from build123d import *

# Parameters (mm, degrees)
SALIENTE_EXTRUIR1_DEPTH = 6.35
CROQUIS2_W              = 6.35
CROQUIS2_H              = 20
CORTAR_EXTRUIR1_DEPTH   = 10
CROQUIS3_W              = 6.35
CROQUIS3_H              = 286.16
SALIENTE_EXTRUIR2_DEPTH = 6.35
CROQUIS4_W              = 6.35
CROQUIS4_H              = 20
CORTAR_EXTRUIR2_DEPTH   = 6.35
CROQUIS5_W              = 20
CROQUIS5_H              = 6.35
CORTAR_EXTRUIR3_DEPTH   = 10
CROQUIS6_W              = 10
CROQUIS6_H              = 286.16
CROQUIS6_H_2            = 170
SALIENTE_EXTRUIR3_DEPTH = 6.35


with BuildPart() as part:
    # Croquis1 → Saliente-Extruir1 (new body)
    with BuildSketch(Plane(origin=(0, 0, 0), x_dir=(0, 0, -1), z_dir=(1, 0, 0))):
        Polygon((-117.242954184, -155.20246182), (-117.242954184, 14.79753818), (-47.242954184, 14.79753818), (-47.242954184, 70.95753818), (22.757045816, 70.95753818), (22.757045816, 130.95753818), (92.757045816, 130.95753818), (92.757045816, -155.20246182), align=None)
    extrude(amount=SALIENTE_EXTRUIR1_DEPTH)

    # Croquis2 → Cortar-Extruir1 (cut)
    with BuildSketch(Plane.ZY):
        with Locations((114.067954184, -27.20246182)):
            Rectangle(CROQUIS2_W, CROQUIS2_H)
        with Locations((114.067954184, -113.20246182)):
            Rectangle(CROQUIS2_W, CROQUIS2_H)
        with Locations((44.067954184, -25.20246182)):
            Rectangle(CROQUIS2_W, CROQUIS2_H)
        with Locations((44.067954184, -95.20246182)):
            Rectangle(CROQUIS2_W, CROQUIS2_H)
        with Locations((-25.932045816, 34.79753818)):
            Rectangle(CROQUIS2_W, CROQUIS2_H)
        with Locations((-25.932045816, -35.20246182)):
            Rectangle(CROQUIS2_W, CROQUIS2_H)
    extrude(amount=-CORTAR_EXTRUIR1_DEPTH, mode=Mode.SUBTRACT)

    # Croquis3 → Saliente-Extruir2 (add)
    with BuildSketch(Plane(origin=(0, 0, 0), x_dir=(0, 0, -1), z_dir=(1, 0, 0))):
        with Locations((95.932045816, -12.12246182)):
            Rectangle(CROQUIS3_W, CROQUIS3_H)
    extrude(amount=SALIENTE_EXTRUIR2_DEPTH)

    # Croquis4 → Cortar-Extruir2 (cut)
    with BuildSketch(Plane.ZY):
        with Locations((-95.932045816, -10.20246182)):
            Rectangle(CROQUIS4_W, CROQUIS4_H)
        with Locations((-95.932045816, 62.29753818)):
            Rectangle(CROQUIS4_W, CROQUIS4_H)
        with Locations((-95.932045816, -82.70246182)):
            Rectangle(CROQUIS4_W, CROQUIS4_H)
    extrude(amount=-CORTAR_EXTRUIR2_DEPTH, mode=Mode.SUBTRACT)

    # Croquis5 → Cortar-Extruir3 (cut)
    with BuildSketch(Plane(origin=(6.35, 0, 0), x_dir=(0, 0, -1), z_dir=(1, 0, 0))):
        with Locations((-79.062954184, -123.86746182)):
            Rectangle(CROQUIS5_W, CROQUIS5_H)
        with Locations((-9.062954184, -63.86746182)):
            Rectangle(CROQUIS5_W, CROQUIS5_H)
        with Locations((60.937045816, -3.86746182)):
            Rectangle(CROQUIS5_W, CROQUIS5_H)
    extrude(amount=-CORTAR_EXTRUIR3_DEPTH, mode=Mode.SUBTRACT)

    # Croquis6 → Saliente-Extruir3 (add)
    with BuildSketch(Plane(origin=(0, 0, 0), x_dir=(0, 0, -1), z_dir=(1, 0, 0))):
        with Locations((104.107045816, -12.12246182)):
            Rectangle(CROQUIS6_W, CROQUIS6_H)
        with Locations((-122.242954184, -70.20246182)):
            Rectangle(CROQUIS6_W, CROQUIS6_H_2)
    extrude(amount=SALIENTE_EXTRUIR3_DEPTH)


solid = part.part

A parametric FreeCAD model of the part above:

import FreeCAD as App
import Part
import Sketcher
from FreeCAD import Vector
Q = App.Units.Quantity


def add_polygon(sketch, points):
    """Adds a closed chain of lines whose ends are joined by coincident constraints."""
    first, n = sketch.GeometryCount, len(points)
    for a, b in zip(points, points[1:] + points[:1]):
        sketch.addGeometry(Part.LineSegment(App.Vector(*a, 0), App.Vector(*b, 0)), False)
    for i in range(n):
        sketch.addConstraint(Sketcher.Constraint("Coincident", first + i, 2, first + (i + 1) % n, 1))

doc = App.newDocument("Part")
body = doc.addObject("PartDesign::Body", "Body")

# Sketch on YZ plane
sketch1 = doc.addObject("Sketcher::SketchObject", "Sketch")
body.addObject(sketch1)
sketch1.AttachmentSupport = (doc.YZ_Plane, [""])
sketch1.MapMode = "FlatFace"
add_polygon(sketch1, [(15, 117), (-155, 117), (-155, -93), (131, -93), (131, -23), (71, -23), (71, 47), (15, 47)])  # lines 0-7
sketch1.addConstraint([
    Sketcher.Constraint("Horizontal", 0),
    Sketcher.Constraint("Vertical", 1),
    Sketcher.Constraint("Horizontal", 2),
    Sketcher.Constraint("Vertical", 3),
    Sketcher.Constraint("Horizontal", 4),
    Sketcher.Constraint("Vertical", 5),
    Sketcher.Constraint("Horizontal", 6),
    Sketcher.Constraint("Vertical", 7),
    Sketcher.Constraint("Equal", 3, 5),
    Sketcher.Constraint("Equal", 5, 7),
    Sketcher.Constraint("DistanceX", 0, 2, 0, 1, Q("170 mm")),
    Sketcher.Constraint("DistanceX", 4, 2, 4, 1, Q("60 mm")),
    Sketcher.Constraint("DistanceY", 1, 2, 1, 1, Q("210 mm")),
    Sketcher.Constraint("DistanceX", 2, 1, 2, 2, Q("286.16 mm")),
    Sketcher.Constraint("DistanceX", 0, 2, -1, 1, Q("155.202462 mm")),
    Sketcher.Constraint("DistanceY", -1, 1, 0, 2, Q("117.242954 mm")),
])
pad1 = doc.addObject("PartDesign::Pad", "Pad")
body.addObject(pad1)
pad1.Profile = sketch1
pad1.Length = 6.35

# Sketch on YZ plane
sketch2 = doc.addObject("Sketcher::SketchObject", "Sketch001")
body.addObject(sketch2)
sketch2.AttachmentSupport = (doc.YZ_Plane, [""])
sketch2.MapMode = "FlatFace"
add_polygon(sketch2, [(-17, 111), (-37, 111), (-37, 117), (-17, 117)])  # lines 0-3
add_polygon(sketch2, [(-103, 111), (-123, 111), (-123, 117), (-103, 117)])  # lines 4-7
add_polygon(sketch2, [(-15, 41), (-35, 41), (-35, 47), (-15, 47)])  # lines 8-11
add_polygon(sketch2, [(-85, 41), (-105, 41), (-105, 47), (-85, 47)])  # lines 12-15
add_polygon(sketch2, [(45, -29), (25, -29), (25, -23), (45, -23)])  # lines 16-19
add_polygon(sketch2, [(-25, -29), (-45, -29), (-45, -23), (-25, -23)])  # lines 20-23
sketch2.addConstraint([
    Sketcher.Constraint("Horizontal", 0),
    Sketcher.Constraint("Vertical", 1),
    Sketcher.Constraint("Horizontal", 2),
    Sketcher.Constraint("Vertical", 3),
    Sketcher.Constraint("Horizontal", 4),
    Sketcher.Constraint("Vertical", 5),
    Sketcher.Constraint("Horizontal", 6),
    Sketcher.Constraint("Vertical", 7),
    Sketcher.Constraint("Horizontal", 8),
    Sketcher.Constraint("Vertical", 9),
    Sketcher.Constraint("Horizontal", 10),
    Sketcher.Constraint("Vertical", 11),
    Sketcher.Constraint("Horizontal", 12),
    Sketcher.Constraint("Vertical", 13),
    Sketcher.Constraint("Horizontal", 14),
    Sketcher.Constraint("Vertical", 15),
    Sketcher.Constraint("Horizontal", 16),
    Sketcher.Constraint("Vertical", 17),
    Sketcher.Constraint("Horizontal", 18),
    Sketcher.Constraint("Vertical", 19),
    Sketcher.Constraint("Horizontal", 20),
    Sketcher.Constraint("Vertical", 21),
    Sketcher.Constraint("Horizontal", 22),
    Sketcher.Constraint("Vertical", 23),
    Sketcher.Constraint("Horizontal", 3, 2, 4, 2),
    Sketcher.Constraint("Horizontal", 2, 2, 5, 2),
    Sketcher.Constraint("Horizontal", 11, 2, 12, 2),
    Sketcher.Constraint("Horizontal", 10, 2, 13, 2),
    Sketcher.Constraint("Horizontal", 19, 2, 20, 2),
    Sketcher.Constraint("Horizontal", 18, 2, 21, 2),
    Sketcher.Constraint("Equal", 2, 4),
    Sketcher.Constraint("Equal", 6, 8),
    Sketcher.Constraint("Equal", 10, 12),
    Sketcher.Constraint("Equal", 14, 16),
    Sketcher.Constraint("Equal", 18, 20),
    Sketcher.Constraint("Equal", 7, 9),
    Sketcher.Constraint("Equal", 15, 17),
    Sketcher.Constraint("DistanceX", 0, 2, 0, 1, Q("20 mm")),
    Sketcher.Constraint("DistanceX", 4, 2, 0, 2, Q("86 mm")),
    Sketcher.Constraint("DistanceX", 0, 2, 8, 2, Q("2 mm")),
    Sketcher.Constraint("DistanceY", 8, 2, 0, 2, Q("70 mm")),
    Sketcher.Constraint("DistanceX", 12, 2, 8, 2, Q("70 mm")),
    Sketcher.Constraint("DistanceX", 11, 2, 16, 2, Q("40 mm")),
    Sketcher.Constraint("DistanceY", 16, 2, 11, 2, Q("70 mm")),
    Sketcher.Constraint("DistanceX", 20, 2, 16, 2, Q("70 mm")),
    Sketcher.Constraint("DistanceY", 1, 1, 1, 2, Q("6.35 mm")),
    Sketcher.Constraint("DistanceX", 0, 2, -1, 1, Q("37.202462 mm")),
    Sketcher.Constraint("DistanceY", -1, 1, 0, 2, Q("110.892954 mm")),
])
pocket1 = doc.addObject("PartDesign::Pocket", "Pocket")
body.addObject(pocket1)
pocket1.Profile = sketch2
pocket1.Length = 10
pocket1.Reversed = True

# Sketch on YZ plane
sketch3 = doc.addObject("Sketcher::SketchObject", "Sketch002")
body.addObject(sketch3)
sketch3.AttachmentSupport = (doc.YZ_Plane, [""])
sketch3.MapMode = "FlatFace"
add_polygon(sketch3, [(131, -93), (-155, -93), (-155, -99), (131, -99)])  # lines 0-3
sketch3.addConstraint([
    Sketcher.Constraint("Horizontal", 0),
    Sketcher.Constraint("Vertical", 1),
    Sketcher.Constraint("Horizontal", 2),
    Sketcher.Constraint("Vertical", 3),
    Sketcher.Constraint("DistanceX", 0, 2, 0, 1, Q("286.16 mm")),
    Sketcher.Constraint("DistanceY", 1, 2, 1, 1, Q("6.35 mm")),
    Sketcher.Constraint("DistanceX", 0, 2, -1, 1, Q("155.202462 mm")),
    Sketcher.Constraint("DistanceY", 0, 2, -1, 1, Q("92.757046 mm")),
])
pad2 = doc.addObject("PartDesign::Pad", "Pad001")
body.addObject(pad2)
pad2.Profile = sketch3
pad2.Length = 6.35

# Sketch on YZ plane
sketch4 = doc.addObject("Sketcher::SketchObject", "Sketch003")
body.addObject(sketch4)
sketch4.AttachmentSupport = (doc.YZ_Plane, [""])
sketch4.MapMode = "FlatFace"
add_polygon(sketch4, [(0, -99), (-20, -99), (-20, -93), (0, -93)])  # lines 0-3
add_polygon(sketch4, [(72, -99), (52, -99), (52, -93), (72, -93)])  # lines 4-7
add_polygon(sketch4, [(-73, -99), (-93, -99), (-93, -93), (-73, -93)])  # lines 8-11
sketch4.addConstraint([
    Sketcher.Constraint("Horizontal", 0),
    Sketcher.Constraint("Vertical", 1),
    Sketcher.Constraint("Horizontal", 2),
    Sketcher.Constraint("Vertical", 3),
    Sketcher.Constraint("Horizontal", 4),
    Sketcher.Constraint("Vertical", 5),
    Sketcher.Constraint("Horizontal", 6),
    Sketcher.Constraint("Vertical", 7),
    Sketcher.Constraint("Horizontal", 8),
    Sketcher.Constraint("Vertical", 9),
    Sketcher.Constraint("Horizontal", 10),
    Sketcher.Constraint("Vertical", 11),
    Sketcher.Constraint("Horizontal", 3, 2, 4, 2),
    Sketcher.Constraint("Horizontal", 2, 2, 5, 2),
    Sketcher.Constraint("Horizontal", 7, 2, 8, 2),
    Sketcher.Constraint("Horizontal", 6, 2, 9, 2),
    Sketcher.Constraint("Equal", 2, 4),
    Sketcher.Constraint("Equal", 6, 8),
    Sketcher.Constraint("DistanceX", 0, 2, 0, 1, Q("20 mm")),
    Sketcher.Constraint("DistanceX", 8, 2, 4, 2, Q("145 mm")),
    Sketcher.Constraint("DistanceY", 1, 1, 1, 2, Q("6.35 mm")),
    Sketcher.Constraint("DistanceX", 3, 2, 4, 2, Q("52.5 mm")),
    Sketcher.Constraint("DistanceX", 0, 2, -1, 1, Q("20.202462 mm")),
    Sketcher.Constraint("DistanceY", 0, 2, -1, 1, Q("99.107046 mm")),
])
pocket2 = doc.addObject("PartDesign::Pocket", "Pocket001")
body.addObject(pocket2)
pocket2.Profile = sketch4
pocket2.Length = 6.35
pocket2.Reversed = True

# Sketch on YZ plane
sketch5 = doc.addObject("Sketcher::SketchObject", "Sketch004")
body.addObject(sketch5)
sketch5.AttachmentSupport = (doc.YZ_Plane, [""])
sketch5.MapMode = "FlatFace"
sketch5.AttachmentOffset = App.Placement(Vector(0, 0, 6.35), App.Rotation())
add_polygon(sketch5, [(-121, 89), (-127, 89), (-127, 69), (-121, 69)])  # lines 0-3
add_polygon(sketch5, [(-61, 19), (-67, 19), (-67, -1), (-61, -1)])  # lines 4-7
add_polygon(sketch5, [(-1, -51), (-7, -51), (-7, -71), (-1, -71)])  # lines 8-11
sketch5.addConstraint([
    Sketcher.Constraint("Horizontal", 0),
    Sketcher.Constraint("Vertical", 1),
    Sketcher.Constraint("Horizontal", 2),
    Sketcher.Constraint("Vertical", 3),
    Sketcher.Constraint("Horizontal", 4),
    Sketcher.Constraint("Vertical", 5),
    Sketcher.Constraint("Horizontal", 6),
    Sketcher.Constraint("Vertical", 7),
    Sketcher.Constraint("Horizontal", 8),
    Sketcher.Constraint("Vertical", 9),
    Sketcher.Constraint("Horizontal", 10),
    Sketcher.Constraint("Vertical", 11),
    Sketcher.Constraint("Equal", 2, 4),
    Sketcher.Constraint("Equal", 6, 8),
    Sketcher.Constraint("Equal", 3, 5),
    Sketcher.Constraint("Equal", 7, 9),
    Sketcher.Constraint("DistanceY", 1, 2, 1, 1, Q("20 mm")),
    Sketcher.Constraint("DistanceY", 4, 2, 2, 2, Q("50 mm")),
    Sketcher.Constraint("DistanceX", 1, 2, 4, 2, Q("60 mm")),
    Sketcher.Constraint("DistanceY", 8, 2, 6, 2, Q("50 mm")),
    Sketcher.Constraint("DistanceX", 5, 2, 8, 2, Q("60 mm")),
    Sketcher.Constraint("DistanceX", 0, 2, 0, 1, Q("6.35 mm")),
    Sketcher.Constraint("DistanceX", 0, 2, -1, 1, Q("127.042462 mm")),
    Sketcher.Constraint("DistanceY", -1, 1, 0, 2, Q("89.062954 mm")),
])
pocket3 = doc.addObject("PartDesign::Pocket", "Pocket002")
body.addObject(pocket3)
pocket3.Profile = sketch5
pocket3.Length = 10

# Sketch on YZ plane
sketch6 = doc.addObject("Sketcher::SketchObject", "Sketch005")
body.addObject(sketch6)
sketch6.AttachmentSupport = (doc.YZ_Plane, [""])
sketch6.MapMode = "FlatFace"
add_polygon(sketch6, [(131, -99), (-155, -99), (-155, -109), (131, -109)])  # lines 0-3
add_polygon(sketch6, [(15, 127), (-155, 127), (-155, 117), (15, 117)])  # lines 4-7
sketch6.addConstraint([
    Sketcher.Constraint("Horizontal", 0),
    Sketcher.Constraint("Vertical", 1),
    Sketcher.Constraint("Horizontal", 2),
    Sketcher.Constraint("Vertical", 3),
    Sketcher.Constraint("Horizontal", 4),
    Sketcher.Constraint("Vertical", 5),
    Sketcher.Constraint("Horizontal", 6),
    Sketcher.Constraint("Vertical", 7),
    Sketcher.Constraint("Vertical", 1, 2, 4, 2),
    Sketcher.Constraint("Equal", 3, 5),
    Sketcher.Constraint("DistanceX", 4, 2, 4, 1, Q("170 mm")),
    Sketcher.Constraint("DistanceY", 1, 2, 1, 1, Q("10 mm")),
    Sketcher.Constraint("DistanceX", 0, 2, 0, 1, Q("286.16 mm")),
    Sketcher.Constraint("DistanceY", 0, 2, 4, 2, Q("226.35 mm")),
    Sketcher.Constraint("DistanceX", 0, 2, -1, 1, Q("155.202462 mm")),
    Sketcher.Constraint("DistanceY", 0, 2, -1, 1, Q("99.107046 mm")),
])
pad3 = doc.addObject("PartDesign::Pad", "Pad002")
body.addObject(pad3)
pad3.Profile = sketch6
pad3.Length = 6.35

doc.recompute()
